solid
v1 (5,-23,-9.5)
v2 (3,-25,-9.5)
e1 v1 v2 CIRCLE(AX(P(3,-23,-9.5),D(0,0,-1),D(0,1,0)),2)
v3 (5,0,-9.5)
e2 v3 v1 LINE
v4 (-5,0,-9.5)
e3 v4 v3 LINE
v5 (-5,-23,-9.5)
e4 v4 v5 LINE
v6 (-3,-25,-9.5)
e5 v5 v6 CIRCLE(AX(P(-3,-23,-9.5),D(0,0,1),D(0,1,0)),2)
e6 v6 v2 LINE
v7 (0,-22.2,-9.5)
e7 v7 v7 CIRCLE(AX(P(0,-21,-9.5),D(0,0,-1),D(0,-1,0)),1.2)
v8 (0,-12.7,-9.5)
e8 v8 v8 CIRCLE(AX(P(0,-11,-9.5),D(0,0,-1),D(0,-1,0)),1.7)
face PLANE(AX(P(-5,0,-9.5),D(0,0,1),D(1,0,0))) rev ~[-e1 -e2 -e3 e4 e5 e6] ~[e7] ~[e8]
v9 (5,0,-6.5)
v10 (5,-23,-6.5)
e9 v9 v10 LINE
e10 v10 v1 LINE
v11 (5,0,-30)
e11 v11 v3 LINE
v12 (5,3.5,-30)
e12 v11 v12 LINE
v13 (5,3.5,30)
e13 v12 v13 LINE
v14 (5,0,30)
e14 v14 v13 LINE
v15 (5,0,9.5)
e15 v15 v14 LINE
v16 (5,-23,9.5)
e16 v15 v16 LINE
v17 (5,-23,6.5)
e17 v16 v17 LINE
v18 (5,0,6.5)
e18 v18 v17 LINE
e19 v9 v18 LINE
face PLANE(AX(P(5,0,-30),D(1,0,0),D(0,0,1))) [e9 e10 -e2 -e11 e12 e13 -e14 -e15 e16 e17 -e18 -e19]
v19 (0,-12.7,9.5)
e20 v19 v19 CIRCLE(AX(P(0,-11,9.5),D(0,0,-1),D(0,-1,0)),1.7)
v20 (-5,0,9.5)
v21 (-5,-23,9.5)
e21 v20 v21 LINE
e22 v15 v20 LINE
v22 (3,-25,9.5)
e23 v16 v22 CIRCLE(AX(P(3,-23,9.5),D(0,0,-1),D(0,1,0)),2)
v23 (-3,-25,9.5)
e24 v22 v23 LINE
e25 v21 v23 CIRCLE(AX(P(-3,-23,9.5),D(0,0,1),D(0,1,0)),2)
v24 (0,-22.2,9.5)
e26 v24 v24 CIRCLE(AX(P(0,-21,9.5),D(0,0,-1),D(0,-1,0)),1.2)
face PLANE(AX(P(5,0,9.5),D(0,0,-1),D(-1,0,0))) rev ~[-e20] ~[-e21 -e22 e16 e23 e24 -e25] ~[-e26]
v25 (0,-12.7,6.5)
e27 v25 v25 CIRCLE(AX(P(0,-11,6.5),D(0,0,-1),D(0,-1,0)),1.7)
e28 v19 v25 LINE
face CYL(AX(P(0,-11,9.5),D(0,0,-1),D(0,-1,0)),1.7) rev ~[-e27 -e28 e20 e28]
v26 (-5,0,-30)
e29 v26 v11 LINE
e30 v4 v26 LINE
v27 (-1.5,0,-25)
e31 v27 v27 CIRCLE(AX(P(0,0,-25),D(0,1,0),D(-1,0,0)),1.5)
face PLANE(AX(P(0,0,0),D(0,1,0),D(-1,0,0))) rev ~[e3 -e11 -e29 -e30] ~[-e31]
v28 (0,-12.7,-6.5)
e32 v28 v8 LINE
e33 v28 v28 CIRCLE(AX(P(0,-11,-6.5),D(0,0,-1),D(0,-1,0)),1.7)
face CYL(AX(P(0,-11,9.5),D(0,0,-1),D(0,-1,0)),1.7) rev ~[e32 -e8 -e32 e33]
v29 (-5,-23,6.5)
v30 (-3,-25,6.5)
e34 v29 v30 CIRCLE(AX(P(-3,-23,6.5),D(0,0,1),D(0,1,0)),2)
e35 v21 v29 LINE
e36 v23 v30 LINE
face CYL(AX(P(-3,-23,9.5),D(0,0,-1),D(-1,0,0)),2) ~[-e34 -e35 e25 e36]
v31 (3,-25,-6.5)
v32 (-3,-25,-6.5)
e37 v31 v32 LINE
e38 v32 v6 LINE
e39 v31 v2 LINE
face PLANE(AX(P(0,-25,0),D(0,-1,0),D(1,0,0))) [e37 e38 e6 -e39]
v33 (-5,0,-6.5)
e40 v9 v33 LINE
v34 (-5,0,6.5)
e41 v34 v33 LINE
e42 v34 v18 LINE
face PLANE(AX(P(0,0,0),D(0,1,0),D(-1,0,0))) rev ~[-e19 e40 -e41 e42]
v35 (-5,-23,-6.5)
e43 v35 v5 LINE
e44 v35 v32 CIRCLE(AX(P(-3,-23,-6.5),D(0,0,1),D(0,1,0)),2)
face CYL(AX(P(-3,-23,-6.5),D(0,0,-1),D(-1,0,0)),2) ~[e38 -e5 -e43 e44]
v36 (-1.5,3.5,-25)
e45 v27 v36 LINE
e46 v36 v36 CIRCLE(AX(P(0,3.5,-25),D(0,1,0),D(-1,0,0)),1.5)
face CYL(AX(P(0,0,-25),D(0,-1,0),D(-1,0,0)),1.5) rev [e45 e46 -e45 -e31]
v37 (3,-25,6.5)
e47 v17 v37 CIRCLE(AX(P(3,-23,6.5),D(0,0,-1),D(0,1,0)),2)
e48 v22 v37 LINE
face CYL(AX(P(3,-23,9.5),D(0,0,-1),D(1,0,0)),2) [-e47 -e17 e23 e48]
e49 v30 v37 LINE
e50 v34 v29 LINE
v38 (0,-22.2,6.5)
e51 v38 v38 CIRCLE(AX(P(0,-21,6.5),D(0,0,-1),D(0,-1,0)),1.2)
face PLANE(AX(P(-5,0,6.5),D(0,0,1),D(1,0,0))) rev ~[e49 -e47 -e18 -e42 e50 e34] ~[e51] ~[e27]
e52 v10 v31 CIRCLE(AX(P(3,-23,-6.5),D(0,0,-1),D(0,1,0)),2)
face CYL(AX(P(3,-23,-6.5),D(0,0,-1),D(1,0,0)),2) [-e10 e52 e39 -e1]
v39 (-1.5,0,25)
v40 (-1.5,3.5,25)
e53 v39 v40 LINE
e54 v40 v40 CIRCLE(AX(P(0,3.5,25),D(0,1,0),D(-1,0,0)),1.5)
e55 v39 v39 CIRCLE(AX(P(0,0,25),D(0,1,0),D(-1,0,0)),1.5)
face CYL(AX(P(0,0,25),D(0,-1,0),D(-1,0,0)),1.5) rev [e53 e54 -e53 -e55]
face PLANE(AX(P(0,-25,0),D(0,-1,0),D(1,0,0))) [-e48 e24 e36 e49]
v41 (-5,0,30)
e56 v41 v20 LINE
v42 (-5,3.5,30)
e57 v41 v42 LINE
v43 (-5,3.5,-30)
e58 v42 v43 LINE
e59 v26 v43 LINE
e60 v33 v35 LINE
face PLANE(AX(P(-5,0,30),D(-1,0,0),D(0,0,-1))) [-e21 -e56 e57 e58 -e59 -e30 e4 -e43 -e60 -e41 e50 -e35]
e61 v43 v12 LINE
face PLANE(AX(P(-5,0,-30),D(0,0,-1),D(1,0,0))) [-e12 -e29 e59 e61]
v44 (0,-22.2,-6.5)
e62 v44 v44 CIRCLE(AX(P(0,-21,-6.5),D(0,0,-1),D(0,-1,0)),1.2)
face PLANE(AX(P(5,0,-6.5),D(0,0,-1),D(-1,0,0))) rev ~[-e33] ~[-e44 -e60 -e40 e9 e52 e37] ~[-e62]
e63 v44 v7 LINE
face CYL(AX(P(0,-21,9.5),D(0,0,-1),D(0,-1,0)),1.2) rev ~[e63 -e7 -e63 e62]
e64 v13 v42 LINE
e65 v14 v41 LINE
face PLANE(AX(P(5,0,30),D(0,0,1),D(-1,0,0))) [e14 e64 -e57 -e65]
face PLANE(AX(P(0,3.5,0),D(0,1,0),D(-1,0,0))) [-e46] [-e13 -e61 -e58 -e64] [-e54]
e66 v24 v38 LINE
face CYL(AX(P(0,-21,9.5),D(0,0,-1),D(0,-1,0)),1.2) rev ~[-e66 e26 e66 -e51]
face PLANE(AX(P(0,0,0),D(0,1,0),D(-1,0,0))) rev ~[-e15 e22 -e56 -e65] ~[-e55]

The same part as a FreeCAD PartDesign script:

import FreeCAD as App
import Part
import Sketcher


def edges_at(feature, points):
    """Names of the edges that pass closest to the given points."""
    edges = feature.Shape.Edges
    near = lambda p: min(range(len(edges)), key=lambda i: edges[i].distToShape(Part.Vertex(*p))[0])
    return sorted({f"Edge{near(p) + 1}" for p in points})

doc = App.newDocument("Part")
params = doc.addObject("Spreadsheet::Sheet", "Params")
for row, (alias, value) in enumerate([
    ("sketch1_diameter", "3 mm"),
    ("sketch1_width", "10 mm"),
    ("sketch1_height", "60 mm"),
    ("pad1_length", "3.5 mm"),
    ("sketch2_height", "3 mm"),
    ("sketch2_width", "10 mm"),
    ("pad2_length", "25 mm"),
    ("fillet_radius", "2 mm"),
    ("sketch3_diameter", "3.4 mm"),
    ("hole_diameter", "3.4 mm"),
    ("sketch4_diameter", "2.4 mm"),
    ("hole2_diameter", "2.4 mm"),
], start=1):
    params.set(f"A{row}", alias)
    params.set(f"B{row}", "=" + value)
    params.setAlias(f"B{row}", alias)

body = doc.addObject("PartDesign::Body", "Body")

# Sketch on XZ plane
sketch1 = doc.addObject("Sketcher::SketchObject", "Sketch")
body.addObject(sketch1)
sketch1.AttachmentSupport = (doc.XZ_Plane, [""])
sketch1.MapMode = "FlatFace"
sketch1.addGeometry([
    Part.LineSegment(App.Vector(-5, 30, 0), App.Vector(5, 30, 0)),  # 0
    Part.LineSegment(App.Vector(5, 30, 0), App.Vector(5, -30, 0)),  # 1
    Part.LineSegment(App.Vector(5, -30, 0), App.Vector(-5, -30, 0)),  # 2
    Part.LineSegment(App.Vector(-5, -30, 0), App.Vector(-5, 30, 0)),  # 3
    Part.Circle(App.Vector(0, -25, 0), App.Vector(0, 0, 1), 1.5),  # 4
    Part.Circle(App.Vector(0, 25, 0), App.Vector(0, 0, 1), 1.5),  # 5
], False)
sketch1.addConstraint([
    Sketcher.Constraint("Coincident", 0, 2, 1, 1),
    Sketcher.Constraint("Coincident", 1, 2, 2, 1),
    Sketcher.Constraint("Coincident", 2, 2, 3, 1),
    Sketcher.Constraint("Coincident", 3, 2, 0, 1),
    Sketcher.Constraint("Horizontal", 0),
    Sketcher.Constraint("Vertical", 1),
    Sketcher.Constraint("Horizontal", 2),
    Sketcher.Constraint("Vertical", 3),
    Sketcher.Constraint("Equal", 4, 5),
    Sketcher.Constraint("Symmetric", 4, 3, 5, 3, -1, 1),
    Sketcher.Constraint("Symmetric", 0, 2, 2, 2, -1, 1),
    Sketcher.Constraint("PointOnObject", 4, 3, -2),
    Sketcher.Constraint("Diameter", 4, 3.0),
    Sketcher.Constraint("DistanceX", 0, 1, 0, 2, 10.0),
    Sketcher.Constraint("DistanceY", 1, 2, 1, 1, 60.0),
    Sketcher.Constraint("DistanceY", 4, 3, 5, 3, 50.0),
])
sketch1.setExpression("Constraints[12]", "Params.sketch1_diameter")
sketch1.setExpression("Constraints[13]", "Params.sketch1_width")
sketch1.setExpression("Constraints[14]", "Params.sketch1_height")
pad1 = doc.addObject("PartDesign::Pad", "Pad")
body.addObject(pad1)
pad1.Profile = sketch1
pad1.setExpression("Length", "Params.pad1_length")
pad1.Reversed = True

# Sketch on XZ plane
sketch2 = doc.addObject("Sketcher::SketchObject", "Sketch001")
body.addObject(sketch2)
sketch2.AttachmentSupport = (doc.XZ_Plane, [""])
sketch2.MapMode = "FlatFace"
sketch2.addGeometry([
    Part.LineSegment(App.Vector(5, 6.5, 0), App.Vector(5, 9.5, 0)),  # 0
    Part.LineSegment(App.Vector(5, 9.5, 0), App.Vector(-5, 9.5, 0)),  # 1
    Part.LineSegment(App.Vector(-5, 9.5, 0), App.Vector(-5, 6.5, 0)),  # 2
    Part.LineSegment(App.Vector(-5, 6.5, 0), App.Vector(5, 6.5, 0)),  # 3
    Part.LineSegment(App.Vector(5, -9.5, 0), App.Vector(5, -6.5, 0)),  # 4
    Part.LineSegment(App.Vector(5, -6.5, 0), App.Vector(-5, -6.5, 0)),  # 5
    Part.LineSegment(App.Vector(-5, -6.5, 0), App.Vector(-5, -9.5, 0)),  # 6
    Part.LineSegment(App.Vector(-5, -9.5, 0), App.Vector(5, -9.5, 0)),  # 7
], False)
sketch2.addConstraint([
    Sketcher.Constraint("Coincident", 0, 2, 1, 1),
    Sketcher.Constraint("Coincident", 1, 2, 2, 1),
    Sketcher.Constraint("Coincident", 2, 2, 3, 1),
    Sketcher.Constraint("Coincident", 3, 2, 0, 1),
    Sketcher.Constraint("Coincident", 4, 2, 5, 1),
    Sketcher.Constraint("Coincident", 5, 2, 6, 1),
    Sketcher.Constraint("Coincident", 6, 2, 7, 1),
    Sketcher.Constraint("Coincident", 7, 2, 4, 1),
    Sketcher.Constraint("Vertical", 0),
    Sketcher.Constraint("Horizontal", 1),
    Sketcher.Constraint("Vertical", 2),
    Sketcher.Constraint("Horizontal", 3),
    Sketcher.Constraint("Vertical", 4),
    Sketcher.Constraint("Horizontal", 5),
    Sketcher.Constraint("Vertical", 6),
    Sketcher.Constraint("Horizontal", 7),
    Sketcher.Constraint("Symmetric", 2, 2, 4, 2, -1, 1),
    Sketcher.Constraint("Symmetric", 0, 2, 6, 2, -1, 1),
    Sketcher.Constraint("Vertical", 3, 2, 4, 2),
    Sketcher.Constraint("DistanceY", 0, 1, 0, 2, 3.0),
    Sketcher.Constraint("DistanceY", 4, 2, 3, 2, 13.0),
    Sketcher.Constraint("DistanceX", 1, 2, 1, 1, 10.0),
])
sketch2.setExpression("Constraints[19]", "Params.sketch2_height")
sketch2.setExpression("Constraints[21]", "Params.sketch2_width")
pad2 = doc.addObject("PartDesign::Pad", "Pad001")
body.addObject(pad2)
pad2.Profile = sketch2
pad2.setExpression("Length", "Params.pad2_length")
doc.recompute()

fillet = doc.addObject("PartDesign::Fillet", "Fillet")
body.addObject(fillet)
fillet.Base = (pad2, edges_at(pad2, [
    (5, -25, -8),
    (-5, -25, -8),
    (5, -25, 8),
    (-5, -25, 8),
]))
fillet.setExpression("Radius", "Params.fillet_radius")

# Sketch on XY plane
sketch3 = doc.addObject("Sketcher::SketchObject", "Sketch002")
body.addObject(sketch3)
sketch3.AttachmentSupport = (doc.XY_Plane, [""])
sketch3.MapMode = "FlatFace"
sketch3.AttachmentOffset = App.Placement(App.Vector(0, 0, 9.5), App.Rotation())
sketch3.addGeometry(Part.Circle(App.Vector(0, -11, 0), App.Vector(0, 0, 1), 1.7), False)
sketch3.addConstraint([
    Sketcher.Constraint("PointOnObject", 0, 3, -2),
    Sketcher.Constraint("Diameter", 0, 3.4),
    Sketcher.Constraint("DistanceY", 0, 3, -1, 1, 11.0),
])
sketch3.setExpression("Constraints[1]", "Params.sketch3_diameter")
doc.recompute()
hole = doc.addObject("PartDesign::Hole", "Hole")
body.addObject(hole)
hole.Profile = sketch3
hole.ThreadType = "None"
hole.setExpression("Diameter", "Params.hole_diameter")
hole.DepthType = "ThroughAll"

# Sketch on XY plane
sketch4 = doc.addObject("Sketcher::SketchObject", "Sketch003")
body.addObject(sketch4)
sketch4.AttachmentSupport = (doc.XY_Plane, [""])
sketch4.MapMode = "FlatFace"
sketch4.AttachmentOffset = App.Placement(App.Vector(0, 0, 9.5), App.Rotation())
sketch4.addGeometry(Part.Circle(App.Vector(0, -21, 0), App.Vector(0, 0, 1), 1.2), False)
sketch4.addConstraint([
    Sketcher.Constraint("PointOnObject", 0, 3, -2),
    Sketcher.Constraint("Diameter", 0, 2.4),
    Sketcher.Constraint("DistanceY", 0, 3, -1, 1, 21.0),
])
sketch4.setExpression("Constraints[1]", "Params.sketch4_diameter")
doc.recompute()
hole2 = doc.addObject("PartDesign::Hole", "Hole001")
body.addObject(hole2)
hole2.Profile = sketch4
hole2.ThreadType = "None"
hole2.setExpression("Diameter", "Params.hole2_diameter")
hole2.DepthType = "ThroughAll"

doc.recompute()
